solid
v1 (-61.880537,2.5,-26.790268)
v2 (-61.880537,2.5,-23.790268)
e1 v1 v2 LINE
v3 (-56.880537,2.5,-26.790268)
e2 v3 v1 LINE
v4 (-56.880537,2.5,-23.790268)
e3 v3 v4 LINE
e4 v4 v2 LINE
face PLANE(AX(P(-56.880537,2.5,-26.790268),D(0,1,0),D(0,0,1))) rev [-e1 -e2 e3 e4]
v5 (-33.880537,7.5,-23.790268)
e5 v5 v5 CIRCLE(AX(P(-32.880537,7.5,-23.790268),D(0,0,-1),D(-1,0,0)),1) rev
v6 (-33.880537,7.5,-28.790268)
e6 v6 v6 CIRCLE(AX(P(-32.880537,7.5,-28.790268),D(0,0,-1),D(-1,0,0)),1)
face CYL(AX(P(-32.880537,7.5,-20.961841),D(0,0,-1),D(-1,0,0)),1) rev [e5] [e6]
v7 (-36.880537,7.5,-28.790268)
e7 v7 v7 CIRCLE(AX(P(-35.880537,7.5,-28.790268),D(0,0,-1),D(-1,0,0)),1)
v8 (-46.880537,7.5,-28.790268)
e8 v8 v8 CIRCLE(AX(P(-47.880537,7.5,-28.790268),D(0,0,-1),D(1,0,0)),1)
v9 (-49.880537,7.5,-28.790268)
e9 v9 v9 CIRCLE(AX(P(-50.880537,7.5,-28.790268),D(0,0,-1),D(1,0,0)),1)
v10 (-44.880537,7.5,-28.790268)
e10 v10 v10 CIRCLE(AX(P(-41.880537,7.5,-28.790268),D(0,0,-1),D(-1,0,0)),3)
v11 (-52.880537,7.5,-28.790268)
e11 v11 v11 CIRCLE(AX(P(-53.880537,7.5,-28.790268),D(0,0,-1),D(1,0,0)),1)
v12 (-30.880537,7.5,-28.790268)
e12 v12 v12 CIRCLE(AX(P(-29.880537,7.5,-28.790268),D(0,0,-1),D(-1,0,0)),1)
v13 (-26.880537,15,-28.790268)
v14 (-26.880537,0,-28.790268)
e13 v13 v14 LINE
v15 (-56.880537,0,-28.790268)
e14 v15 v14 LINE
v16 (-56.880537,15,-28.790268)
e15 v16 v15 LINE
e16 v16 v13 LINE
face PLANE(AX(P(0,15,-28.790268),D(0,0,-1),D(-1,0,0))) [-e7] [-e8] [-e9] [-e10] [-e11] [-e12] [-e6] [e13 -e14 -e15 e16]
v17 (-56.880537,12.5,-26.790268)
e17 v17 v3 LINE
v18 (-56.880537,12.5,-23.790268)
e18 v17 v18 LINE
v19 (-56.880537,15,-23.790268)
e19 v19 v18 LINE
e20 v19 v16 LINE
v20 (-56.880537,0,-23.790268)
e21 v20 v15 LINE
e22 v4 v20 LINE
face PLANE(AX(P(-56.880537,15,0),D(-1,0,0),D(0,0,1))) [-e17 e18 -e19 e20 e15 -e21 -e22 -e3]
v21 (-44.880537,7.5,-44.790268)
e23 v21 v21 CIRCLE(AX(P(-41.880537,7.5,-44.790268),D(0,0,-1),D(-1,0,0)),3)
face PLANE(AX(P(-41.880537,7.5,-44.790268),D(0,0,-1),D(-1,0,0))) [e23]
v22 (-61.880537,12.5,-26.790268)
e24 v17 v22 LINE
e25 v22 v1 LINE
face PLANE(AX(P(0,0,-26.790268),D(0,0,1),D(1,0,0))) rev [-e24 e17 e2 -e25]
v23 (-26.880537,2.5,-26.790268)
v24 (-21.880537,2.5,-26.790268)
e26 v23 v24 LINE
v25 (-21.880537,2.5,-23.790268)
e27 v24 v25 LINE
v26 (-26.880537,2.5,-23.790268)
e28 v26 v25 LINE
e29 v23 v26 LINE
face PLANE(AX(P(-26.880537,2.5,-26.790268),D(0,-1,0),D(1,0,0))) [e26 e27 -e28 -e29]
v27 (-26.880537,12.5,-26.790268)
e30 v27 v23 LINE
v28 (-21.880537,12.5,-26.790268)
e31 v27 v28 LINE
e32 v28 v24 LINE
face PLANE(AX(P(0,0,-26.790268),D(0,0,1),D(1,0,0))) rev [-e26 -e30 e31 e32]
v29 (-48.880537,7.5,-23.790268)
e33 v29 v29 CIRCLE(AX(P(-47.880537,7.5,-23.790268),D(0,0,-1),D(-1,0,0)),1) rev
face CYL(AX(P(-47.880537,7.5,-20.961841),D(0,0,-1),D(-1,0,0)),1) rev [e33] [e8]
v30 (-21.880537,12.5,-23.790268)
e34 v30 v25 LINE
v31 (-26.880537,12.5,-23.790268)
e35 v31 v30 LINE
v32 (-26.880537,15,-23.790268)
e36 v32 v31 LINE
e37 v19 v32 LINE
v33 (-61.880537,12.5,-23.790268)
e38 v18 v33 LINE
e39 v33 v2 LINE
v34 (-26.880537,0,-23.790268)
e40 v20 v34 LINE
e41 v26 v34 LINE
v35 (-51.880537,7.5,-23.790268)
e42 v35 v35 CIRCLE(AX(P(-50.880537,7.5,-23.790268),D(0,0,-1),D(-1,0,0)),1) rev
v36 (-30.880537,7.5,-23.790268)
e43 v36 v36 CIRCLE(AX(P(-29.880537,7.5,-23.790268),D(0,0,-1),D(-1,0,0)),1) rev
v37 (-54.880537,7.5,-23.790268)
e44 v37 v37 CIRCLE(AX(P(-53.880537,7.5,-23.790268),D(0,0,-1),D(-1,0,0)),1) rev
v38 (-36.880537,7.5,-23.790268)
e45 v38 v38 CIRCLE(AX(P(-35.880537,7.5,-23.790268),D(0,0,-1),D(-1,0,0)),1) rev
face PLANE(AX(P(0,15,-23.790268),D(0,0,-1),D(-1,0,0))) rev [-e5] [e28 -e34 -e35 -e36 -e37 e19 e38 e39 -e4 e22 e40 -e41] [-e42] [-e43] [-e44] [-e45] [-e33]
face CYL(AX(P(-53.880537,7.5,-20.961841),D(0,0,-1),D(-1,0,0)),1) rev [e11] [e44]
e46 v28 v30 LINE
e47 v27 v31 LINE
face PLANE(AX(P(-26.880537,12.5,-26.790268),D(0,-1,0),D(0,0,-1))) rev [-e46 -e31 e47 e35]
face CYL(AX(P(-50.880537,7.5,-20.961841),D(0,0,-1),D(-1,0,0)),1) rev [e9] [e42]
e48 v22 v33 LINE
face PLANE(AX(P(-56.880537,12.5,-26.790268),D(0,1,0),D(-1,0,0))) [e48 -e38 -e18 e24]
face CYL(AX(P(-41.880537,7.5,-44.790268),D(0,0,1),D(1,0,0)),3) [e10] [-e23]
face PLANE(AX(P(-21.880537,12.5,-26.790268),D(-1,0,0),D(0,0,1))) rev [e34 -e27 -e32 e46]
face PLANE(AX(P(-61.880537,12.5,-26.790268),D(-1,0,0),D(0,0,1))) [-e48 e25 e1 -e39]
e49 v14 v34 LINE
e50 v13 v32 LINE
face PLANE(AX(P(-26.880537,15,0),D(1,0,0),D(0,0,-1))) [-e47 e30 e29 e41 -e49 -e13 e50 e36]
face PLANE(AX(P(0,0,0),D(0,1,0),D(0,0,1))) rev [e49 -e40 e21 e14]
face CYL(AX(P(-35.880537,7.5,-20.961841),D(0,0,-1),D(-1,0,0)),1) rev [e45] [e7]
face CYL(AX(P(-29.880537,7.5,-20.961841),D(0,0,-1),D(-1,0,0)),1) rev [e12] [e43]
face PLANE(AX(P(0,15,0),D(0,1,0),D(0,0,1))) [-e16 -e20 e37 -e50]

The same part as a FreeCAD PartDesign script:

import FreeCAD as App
import Part
import Sketcher
from FreeCAD import Vector
Q = App.Units.Quantity


def add_polygon(sketch, points):
    """Adds a closed chain of lines whose ends are joined by coincident constraints."""
    first, n = sketch.GeometryCount, len(points)
    for a, b in zip(points, points[1:] + points[:1]):
        sketch.addGeometry(Part.LineSegment(App.Vector(*a, 0), App.Vector(*b, 0)), False)
    for i in range(n):
        sketch.addConstraint(Sketcher.Constraint("Coincident", first + i, 2, first + (i + 1) % n, 1))

doc = App.newDocument("Part")
params = doc.addObject("Spreadsheet::Sheet", "Params")
for row, (alias, value) in enumerate([
    ("sketch1_width", "30 mm"),
    ("sketch1_height", "5 mm"),
    ("pad1_length", "15 mm"),
    ("sketch2_diameter", "2 mm"),
    ("pocket1_length", "5 mm"),
    ("sketch3_width", "5 mm"),
    ("sketch3_height", "10 mm"),
    ("pad2_length", "3 mm"),
    ("sketch4_diameter", "6 mm"),
    ("pad3_length", "16 mm"),
], start=1):
    params.set(f"A{row}", alias)
    params.set(f"B{row}", "=" + value)
    params.setAlias(f"B{row}", alias)

body = doc.addObject("PartDesign::Body", "Body")

# Sketch on XZ plane
sketch1 = doc.addObject("Sketcher::SketchObject", "Sketch")
body.addObject(sketch1)
sketch1.AttachmentSupport = (doc.XZ_Plane, [""])
sketch1.MapMode = "FlatFace"
add_polygon(sketch1, [(-56.880537, -28.790268), (-56.880537, -23.790268), (-26.880537, -23.790268), (-26.880537, -28.790268)])  # lines 0-3
sketch1.addConstraint([
    Sketcher.Constraint("Vertical", 0),
    Sketcher.Constraint("Horizontal", 1),
    Sketcher.Constraint("Vertical", 2),
    Sketcher.Constraint("Horizontal", 3),
    Sketcher.Constraint("DistanceX", 1, 1, 1, 2, Q("30 mm")),
    Sketcher.Constraint("DistanceY", 0, 1, 0, 2, Q("5 mm")),
    Sketcher.Constraint("DistanceY", 0, 2, -1, 1, Q("23.790268 mm")),
    Sketcher.Constraint("DistanceX", 0, 2, -1, 1, Q("56.880537 mm")),
])
sketch1.setExpression("Constraints[8]", "Params.sketch1_width")
sketch1.setExpression("Constraints[9]", "Params.sketch1_height")
pad1 = doc.addObject("PartDesign::Pad", "Pad")
body.addObject(pad1)
pad1.Profile = sketch1
pad1.setExpression("Length", "Params.pad1_length")
pad1.Reversed = True

# Sketch on XY plane
sketch2 = doc.addObject("Sketcher::SketchObject", "Sketch001")
body.addObject(sketch2)
sketch2.AttachmentSupport = (doc.XY_Plane, [""])
sketch2.MapMode = "FlatFace"
sketch2.AttachmentOffset = App.Placement(Vector(0, 0, -28.790268), App.Rotation())
sketch2.addGeometry([
    Part.Circle(Vector(-35.880537, 7.5, 0), Vector(0, 0, 1), 1),  # 0
    Part.Circle(Vector(-32.880537, 7.5, 0), Vector(0, 0, 1), 1),  # 1
    Part.Circle(Vector(-29.880537, 7.5, 0), Vector(0, 0, 1), 1),  # 2
    Part.Circle(Vector(-53.880537, 7.5, 0), Vector(0, 0, 1), 1),  # 3
    Part.Circle(Vector(-50.880537, 7.5, 0), Vector(0, 0, 1), 1),  # 4
    Part.Circle(Vector(-47.880537, 7.5, 0), Vector(0, 0, 1), 1),  # 5
], False)
sketch2.addConstraint([
    Sketcher.Constraint("Equal", 0, 1),
    Sketcher.Constraint("Equal", 1, 2),
    Sketcher.Constraint("Equal", 2, 3),
    Sketcher.Constraint("Equal", 3, 4),
    Sketcher.Constraint("Equal", 4, 5),
    Sketcher.Constraint("Horizontal", 0, 3, 1, 3),
    Sketcher.Constraint("Horizontal", 1, 3, 2, 3),
    Sketcher.Constraint("Horizontal", 2, 3, 3, 3),
    Sketcher.Constraint("Horizontal", 3, 3, 4, 3),
    Sketcher.Constraint("Horizontal", 4, 3, 5, 3),
    Sketcher.Constraint("Diameter", 0, Q("2 mm")),
    Sketcher.Constraint("DistanceX", 0, 3, 1, 3, Q("3 mm")),
    Sketcher.Constraint("DistanceX", 1, 3, 2, 3, Q("3 mm")),
    Sketcher.Constraint("DistanceX", 3, 3, 0, 3, Q("18 mm")),
    Sketcher.Constraint("DistanceX", 3, 3, 4, 3, Q("3 mm")),
    Sketcher.Constraint("DistanceX", 4, 3, 5, 3, Q("3 mm")),
    Sketcher.Constraint("DistanceY", -1, 1, 0, 3, Q("7.5 mm")),
    Sketcher.Constraint("DistanceX", 0, 3, -1, 1, Q("35.880537 mm")),
])
sketch2.setExpression("Constraints[10]", "Params.sketch2_diameter")
pocket1 = doc.addObject("PartDesign::Pocket", "Pocket")
body.addObject(pocket1)
pocket1.Profile = sketch2
pocket1.setExpression("Length", "Params.pocket1_length")
pocket1.Reversed = True

# Sketch on XY plane
sketch3 = doc.addObject("Sketcher::SketchObject", "Sketch002")
body.addObject(sketch3)
sketch3.AttachmentSupport = (doc.XY_Plane, [""])
sketch3.MapMode = "FlatFace"
sketch3.AttachmentOffset = App.Placement(Vector(0, 0, -23.790268), App.Rotation())
add_polygon(sketch3, [(-61.880537, 12.5), (-61.880537, 2.5), (-56.880537, 2.5), (-56.880537, 12.5)])  # lines 0-3
add_polygon(sketch3, [(-26.880537, 12.5), (-26.880537, 2.5), (-21.880537, 2.5), (-21.880537, 12.5)])  # lines 4-7
sketch3.addConstraint([
    Sketcher.Constraint("Vertical", 0),
    Sketcher.Constraint("Horizontal", 1),
    Sketcher.Constraint("Vertical", 2),
    Sketcher.Constraint("Horizontal", 3),
    Sketcher.Constraint("Vertical", 4),
    Sketcher.Constraint("Horizontal", 5),
    Sketcher.Constraint("Vertical", 6),
    Sketcher.Constraint("Horizontal", 7),
    Sketcher.Constraint("Horizontal", 1, 2, 4, 2),
    Sketcher.Constraint("Horizontal", 3, 2, 6, 2),
    Sketcher.Constraint("Equal", 3, 5),
    Sketcher.Constraint("DistanceX", 1, 1, 1, 2, Q("5 mm")),
    Sketcher.Constraint("DistanceY", 0, 2, 0, 1, Q("10 mm")),
    Sketcher.Constraint("DistanceX", 1, 2, 4, 2, Q("30 mm")),
    Sketcher.Constraint("DistanceY", -1, 1, 0, 2, Q("2.5 mm")),
    Sketcher.Constraint("DistanceX", 0, 2, -1, 1, Q("61.880537 mm")),
])
sketch3.setExpression("Constraints[19]", "Params.sketch3_width")
sketch3.setExpression("Constraints[20]", "Params.sketch3_height")
pad2 = doc.addObject("PartDesign::Pad", "Pad001")
body.addObject(pad2)
pad2.Profile = sketch3
pad2.setExpression("Length", "Params.pad2_length")
pad2.Reversed = True

# Sketch on XY plane
sketch4 = doc.addObject("Sketcher::SketchObject", "Sketch003")
body.addObject(sketch4)
sketch4.AttachmentSupport = (doc.XY_Plane, [""])
sketch4.MapMode = "FlatFace"
sketch4.AttachmentOffset = App.Placement(Vector(0, 0, -28.790268), App.Rotation())
sketch4.addGeometry(Part.Circle(Vector(-41.880537, 7.5, 0), Vector(0, 0, 1), 3), False)
sketch4.addConstraint([
    Sketcher.Constraint("Diameter", 0, Q("6 mm")),
    Sketcher.Constraint("DistanceY", -1, 1, 0, 3, Q("7.5 mm")),
    Sketcher.Constraint("DistanceX", 0, 3, -1, 1, Q("41.880537 mm")),
])
sketch4.setExpression("Constraints[0]", "Params.sketch4_diameter")
pad3 = doc.addObject("PartDesign::Pad", "Pad002")
body.addObject(pad3)
pad3.Profile = sketch4
pad3.setExpression("Length", "Params.pad3_length")
pad3.Reversed = True

doc.recompute()
